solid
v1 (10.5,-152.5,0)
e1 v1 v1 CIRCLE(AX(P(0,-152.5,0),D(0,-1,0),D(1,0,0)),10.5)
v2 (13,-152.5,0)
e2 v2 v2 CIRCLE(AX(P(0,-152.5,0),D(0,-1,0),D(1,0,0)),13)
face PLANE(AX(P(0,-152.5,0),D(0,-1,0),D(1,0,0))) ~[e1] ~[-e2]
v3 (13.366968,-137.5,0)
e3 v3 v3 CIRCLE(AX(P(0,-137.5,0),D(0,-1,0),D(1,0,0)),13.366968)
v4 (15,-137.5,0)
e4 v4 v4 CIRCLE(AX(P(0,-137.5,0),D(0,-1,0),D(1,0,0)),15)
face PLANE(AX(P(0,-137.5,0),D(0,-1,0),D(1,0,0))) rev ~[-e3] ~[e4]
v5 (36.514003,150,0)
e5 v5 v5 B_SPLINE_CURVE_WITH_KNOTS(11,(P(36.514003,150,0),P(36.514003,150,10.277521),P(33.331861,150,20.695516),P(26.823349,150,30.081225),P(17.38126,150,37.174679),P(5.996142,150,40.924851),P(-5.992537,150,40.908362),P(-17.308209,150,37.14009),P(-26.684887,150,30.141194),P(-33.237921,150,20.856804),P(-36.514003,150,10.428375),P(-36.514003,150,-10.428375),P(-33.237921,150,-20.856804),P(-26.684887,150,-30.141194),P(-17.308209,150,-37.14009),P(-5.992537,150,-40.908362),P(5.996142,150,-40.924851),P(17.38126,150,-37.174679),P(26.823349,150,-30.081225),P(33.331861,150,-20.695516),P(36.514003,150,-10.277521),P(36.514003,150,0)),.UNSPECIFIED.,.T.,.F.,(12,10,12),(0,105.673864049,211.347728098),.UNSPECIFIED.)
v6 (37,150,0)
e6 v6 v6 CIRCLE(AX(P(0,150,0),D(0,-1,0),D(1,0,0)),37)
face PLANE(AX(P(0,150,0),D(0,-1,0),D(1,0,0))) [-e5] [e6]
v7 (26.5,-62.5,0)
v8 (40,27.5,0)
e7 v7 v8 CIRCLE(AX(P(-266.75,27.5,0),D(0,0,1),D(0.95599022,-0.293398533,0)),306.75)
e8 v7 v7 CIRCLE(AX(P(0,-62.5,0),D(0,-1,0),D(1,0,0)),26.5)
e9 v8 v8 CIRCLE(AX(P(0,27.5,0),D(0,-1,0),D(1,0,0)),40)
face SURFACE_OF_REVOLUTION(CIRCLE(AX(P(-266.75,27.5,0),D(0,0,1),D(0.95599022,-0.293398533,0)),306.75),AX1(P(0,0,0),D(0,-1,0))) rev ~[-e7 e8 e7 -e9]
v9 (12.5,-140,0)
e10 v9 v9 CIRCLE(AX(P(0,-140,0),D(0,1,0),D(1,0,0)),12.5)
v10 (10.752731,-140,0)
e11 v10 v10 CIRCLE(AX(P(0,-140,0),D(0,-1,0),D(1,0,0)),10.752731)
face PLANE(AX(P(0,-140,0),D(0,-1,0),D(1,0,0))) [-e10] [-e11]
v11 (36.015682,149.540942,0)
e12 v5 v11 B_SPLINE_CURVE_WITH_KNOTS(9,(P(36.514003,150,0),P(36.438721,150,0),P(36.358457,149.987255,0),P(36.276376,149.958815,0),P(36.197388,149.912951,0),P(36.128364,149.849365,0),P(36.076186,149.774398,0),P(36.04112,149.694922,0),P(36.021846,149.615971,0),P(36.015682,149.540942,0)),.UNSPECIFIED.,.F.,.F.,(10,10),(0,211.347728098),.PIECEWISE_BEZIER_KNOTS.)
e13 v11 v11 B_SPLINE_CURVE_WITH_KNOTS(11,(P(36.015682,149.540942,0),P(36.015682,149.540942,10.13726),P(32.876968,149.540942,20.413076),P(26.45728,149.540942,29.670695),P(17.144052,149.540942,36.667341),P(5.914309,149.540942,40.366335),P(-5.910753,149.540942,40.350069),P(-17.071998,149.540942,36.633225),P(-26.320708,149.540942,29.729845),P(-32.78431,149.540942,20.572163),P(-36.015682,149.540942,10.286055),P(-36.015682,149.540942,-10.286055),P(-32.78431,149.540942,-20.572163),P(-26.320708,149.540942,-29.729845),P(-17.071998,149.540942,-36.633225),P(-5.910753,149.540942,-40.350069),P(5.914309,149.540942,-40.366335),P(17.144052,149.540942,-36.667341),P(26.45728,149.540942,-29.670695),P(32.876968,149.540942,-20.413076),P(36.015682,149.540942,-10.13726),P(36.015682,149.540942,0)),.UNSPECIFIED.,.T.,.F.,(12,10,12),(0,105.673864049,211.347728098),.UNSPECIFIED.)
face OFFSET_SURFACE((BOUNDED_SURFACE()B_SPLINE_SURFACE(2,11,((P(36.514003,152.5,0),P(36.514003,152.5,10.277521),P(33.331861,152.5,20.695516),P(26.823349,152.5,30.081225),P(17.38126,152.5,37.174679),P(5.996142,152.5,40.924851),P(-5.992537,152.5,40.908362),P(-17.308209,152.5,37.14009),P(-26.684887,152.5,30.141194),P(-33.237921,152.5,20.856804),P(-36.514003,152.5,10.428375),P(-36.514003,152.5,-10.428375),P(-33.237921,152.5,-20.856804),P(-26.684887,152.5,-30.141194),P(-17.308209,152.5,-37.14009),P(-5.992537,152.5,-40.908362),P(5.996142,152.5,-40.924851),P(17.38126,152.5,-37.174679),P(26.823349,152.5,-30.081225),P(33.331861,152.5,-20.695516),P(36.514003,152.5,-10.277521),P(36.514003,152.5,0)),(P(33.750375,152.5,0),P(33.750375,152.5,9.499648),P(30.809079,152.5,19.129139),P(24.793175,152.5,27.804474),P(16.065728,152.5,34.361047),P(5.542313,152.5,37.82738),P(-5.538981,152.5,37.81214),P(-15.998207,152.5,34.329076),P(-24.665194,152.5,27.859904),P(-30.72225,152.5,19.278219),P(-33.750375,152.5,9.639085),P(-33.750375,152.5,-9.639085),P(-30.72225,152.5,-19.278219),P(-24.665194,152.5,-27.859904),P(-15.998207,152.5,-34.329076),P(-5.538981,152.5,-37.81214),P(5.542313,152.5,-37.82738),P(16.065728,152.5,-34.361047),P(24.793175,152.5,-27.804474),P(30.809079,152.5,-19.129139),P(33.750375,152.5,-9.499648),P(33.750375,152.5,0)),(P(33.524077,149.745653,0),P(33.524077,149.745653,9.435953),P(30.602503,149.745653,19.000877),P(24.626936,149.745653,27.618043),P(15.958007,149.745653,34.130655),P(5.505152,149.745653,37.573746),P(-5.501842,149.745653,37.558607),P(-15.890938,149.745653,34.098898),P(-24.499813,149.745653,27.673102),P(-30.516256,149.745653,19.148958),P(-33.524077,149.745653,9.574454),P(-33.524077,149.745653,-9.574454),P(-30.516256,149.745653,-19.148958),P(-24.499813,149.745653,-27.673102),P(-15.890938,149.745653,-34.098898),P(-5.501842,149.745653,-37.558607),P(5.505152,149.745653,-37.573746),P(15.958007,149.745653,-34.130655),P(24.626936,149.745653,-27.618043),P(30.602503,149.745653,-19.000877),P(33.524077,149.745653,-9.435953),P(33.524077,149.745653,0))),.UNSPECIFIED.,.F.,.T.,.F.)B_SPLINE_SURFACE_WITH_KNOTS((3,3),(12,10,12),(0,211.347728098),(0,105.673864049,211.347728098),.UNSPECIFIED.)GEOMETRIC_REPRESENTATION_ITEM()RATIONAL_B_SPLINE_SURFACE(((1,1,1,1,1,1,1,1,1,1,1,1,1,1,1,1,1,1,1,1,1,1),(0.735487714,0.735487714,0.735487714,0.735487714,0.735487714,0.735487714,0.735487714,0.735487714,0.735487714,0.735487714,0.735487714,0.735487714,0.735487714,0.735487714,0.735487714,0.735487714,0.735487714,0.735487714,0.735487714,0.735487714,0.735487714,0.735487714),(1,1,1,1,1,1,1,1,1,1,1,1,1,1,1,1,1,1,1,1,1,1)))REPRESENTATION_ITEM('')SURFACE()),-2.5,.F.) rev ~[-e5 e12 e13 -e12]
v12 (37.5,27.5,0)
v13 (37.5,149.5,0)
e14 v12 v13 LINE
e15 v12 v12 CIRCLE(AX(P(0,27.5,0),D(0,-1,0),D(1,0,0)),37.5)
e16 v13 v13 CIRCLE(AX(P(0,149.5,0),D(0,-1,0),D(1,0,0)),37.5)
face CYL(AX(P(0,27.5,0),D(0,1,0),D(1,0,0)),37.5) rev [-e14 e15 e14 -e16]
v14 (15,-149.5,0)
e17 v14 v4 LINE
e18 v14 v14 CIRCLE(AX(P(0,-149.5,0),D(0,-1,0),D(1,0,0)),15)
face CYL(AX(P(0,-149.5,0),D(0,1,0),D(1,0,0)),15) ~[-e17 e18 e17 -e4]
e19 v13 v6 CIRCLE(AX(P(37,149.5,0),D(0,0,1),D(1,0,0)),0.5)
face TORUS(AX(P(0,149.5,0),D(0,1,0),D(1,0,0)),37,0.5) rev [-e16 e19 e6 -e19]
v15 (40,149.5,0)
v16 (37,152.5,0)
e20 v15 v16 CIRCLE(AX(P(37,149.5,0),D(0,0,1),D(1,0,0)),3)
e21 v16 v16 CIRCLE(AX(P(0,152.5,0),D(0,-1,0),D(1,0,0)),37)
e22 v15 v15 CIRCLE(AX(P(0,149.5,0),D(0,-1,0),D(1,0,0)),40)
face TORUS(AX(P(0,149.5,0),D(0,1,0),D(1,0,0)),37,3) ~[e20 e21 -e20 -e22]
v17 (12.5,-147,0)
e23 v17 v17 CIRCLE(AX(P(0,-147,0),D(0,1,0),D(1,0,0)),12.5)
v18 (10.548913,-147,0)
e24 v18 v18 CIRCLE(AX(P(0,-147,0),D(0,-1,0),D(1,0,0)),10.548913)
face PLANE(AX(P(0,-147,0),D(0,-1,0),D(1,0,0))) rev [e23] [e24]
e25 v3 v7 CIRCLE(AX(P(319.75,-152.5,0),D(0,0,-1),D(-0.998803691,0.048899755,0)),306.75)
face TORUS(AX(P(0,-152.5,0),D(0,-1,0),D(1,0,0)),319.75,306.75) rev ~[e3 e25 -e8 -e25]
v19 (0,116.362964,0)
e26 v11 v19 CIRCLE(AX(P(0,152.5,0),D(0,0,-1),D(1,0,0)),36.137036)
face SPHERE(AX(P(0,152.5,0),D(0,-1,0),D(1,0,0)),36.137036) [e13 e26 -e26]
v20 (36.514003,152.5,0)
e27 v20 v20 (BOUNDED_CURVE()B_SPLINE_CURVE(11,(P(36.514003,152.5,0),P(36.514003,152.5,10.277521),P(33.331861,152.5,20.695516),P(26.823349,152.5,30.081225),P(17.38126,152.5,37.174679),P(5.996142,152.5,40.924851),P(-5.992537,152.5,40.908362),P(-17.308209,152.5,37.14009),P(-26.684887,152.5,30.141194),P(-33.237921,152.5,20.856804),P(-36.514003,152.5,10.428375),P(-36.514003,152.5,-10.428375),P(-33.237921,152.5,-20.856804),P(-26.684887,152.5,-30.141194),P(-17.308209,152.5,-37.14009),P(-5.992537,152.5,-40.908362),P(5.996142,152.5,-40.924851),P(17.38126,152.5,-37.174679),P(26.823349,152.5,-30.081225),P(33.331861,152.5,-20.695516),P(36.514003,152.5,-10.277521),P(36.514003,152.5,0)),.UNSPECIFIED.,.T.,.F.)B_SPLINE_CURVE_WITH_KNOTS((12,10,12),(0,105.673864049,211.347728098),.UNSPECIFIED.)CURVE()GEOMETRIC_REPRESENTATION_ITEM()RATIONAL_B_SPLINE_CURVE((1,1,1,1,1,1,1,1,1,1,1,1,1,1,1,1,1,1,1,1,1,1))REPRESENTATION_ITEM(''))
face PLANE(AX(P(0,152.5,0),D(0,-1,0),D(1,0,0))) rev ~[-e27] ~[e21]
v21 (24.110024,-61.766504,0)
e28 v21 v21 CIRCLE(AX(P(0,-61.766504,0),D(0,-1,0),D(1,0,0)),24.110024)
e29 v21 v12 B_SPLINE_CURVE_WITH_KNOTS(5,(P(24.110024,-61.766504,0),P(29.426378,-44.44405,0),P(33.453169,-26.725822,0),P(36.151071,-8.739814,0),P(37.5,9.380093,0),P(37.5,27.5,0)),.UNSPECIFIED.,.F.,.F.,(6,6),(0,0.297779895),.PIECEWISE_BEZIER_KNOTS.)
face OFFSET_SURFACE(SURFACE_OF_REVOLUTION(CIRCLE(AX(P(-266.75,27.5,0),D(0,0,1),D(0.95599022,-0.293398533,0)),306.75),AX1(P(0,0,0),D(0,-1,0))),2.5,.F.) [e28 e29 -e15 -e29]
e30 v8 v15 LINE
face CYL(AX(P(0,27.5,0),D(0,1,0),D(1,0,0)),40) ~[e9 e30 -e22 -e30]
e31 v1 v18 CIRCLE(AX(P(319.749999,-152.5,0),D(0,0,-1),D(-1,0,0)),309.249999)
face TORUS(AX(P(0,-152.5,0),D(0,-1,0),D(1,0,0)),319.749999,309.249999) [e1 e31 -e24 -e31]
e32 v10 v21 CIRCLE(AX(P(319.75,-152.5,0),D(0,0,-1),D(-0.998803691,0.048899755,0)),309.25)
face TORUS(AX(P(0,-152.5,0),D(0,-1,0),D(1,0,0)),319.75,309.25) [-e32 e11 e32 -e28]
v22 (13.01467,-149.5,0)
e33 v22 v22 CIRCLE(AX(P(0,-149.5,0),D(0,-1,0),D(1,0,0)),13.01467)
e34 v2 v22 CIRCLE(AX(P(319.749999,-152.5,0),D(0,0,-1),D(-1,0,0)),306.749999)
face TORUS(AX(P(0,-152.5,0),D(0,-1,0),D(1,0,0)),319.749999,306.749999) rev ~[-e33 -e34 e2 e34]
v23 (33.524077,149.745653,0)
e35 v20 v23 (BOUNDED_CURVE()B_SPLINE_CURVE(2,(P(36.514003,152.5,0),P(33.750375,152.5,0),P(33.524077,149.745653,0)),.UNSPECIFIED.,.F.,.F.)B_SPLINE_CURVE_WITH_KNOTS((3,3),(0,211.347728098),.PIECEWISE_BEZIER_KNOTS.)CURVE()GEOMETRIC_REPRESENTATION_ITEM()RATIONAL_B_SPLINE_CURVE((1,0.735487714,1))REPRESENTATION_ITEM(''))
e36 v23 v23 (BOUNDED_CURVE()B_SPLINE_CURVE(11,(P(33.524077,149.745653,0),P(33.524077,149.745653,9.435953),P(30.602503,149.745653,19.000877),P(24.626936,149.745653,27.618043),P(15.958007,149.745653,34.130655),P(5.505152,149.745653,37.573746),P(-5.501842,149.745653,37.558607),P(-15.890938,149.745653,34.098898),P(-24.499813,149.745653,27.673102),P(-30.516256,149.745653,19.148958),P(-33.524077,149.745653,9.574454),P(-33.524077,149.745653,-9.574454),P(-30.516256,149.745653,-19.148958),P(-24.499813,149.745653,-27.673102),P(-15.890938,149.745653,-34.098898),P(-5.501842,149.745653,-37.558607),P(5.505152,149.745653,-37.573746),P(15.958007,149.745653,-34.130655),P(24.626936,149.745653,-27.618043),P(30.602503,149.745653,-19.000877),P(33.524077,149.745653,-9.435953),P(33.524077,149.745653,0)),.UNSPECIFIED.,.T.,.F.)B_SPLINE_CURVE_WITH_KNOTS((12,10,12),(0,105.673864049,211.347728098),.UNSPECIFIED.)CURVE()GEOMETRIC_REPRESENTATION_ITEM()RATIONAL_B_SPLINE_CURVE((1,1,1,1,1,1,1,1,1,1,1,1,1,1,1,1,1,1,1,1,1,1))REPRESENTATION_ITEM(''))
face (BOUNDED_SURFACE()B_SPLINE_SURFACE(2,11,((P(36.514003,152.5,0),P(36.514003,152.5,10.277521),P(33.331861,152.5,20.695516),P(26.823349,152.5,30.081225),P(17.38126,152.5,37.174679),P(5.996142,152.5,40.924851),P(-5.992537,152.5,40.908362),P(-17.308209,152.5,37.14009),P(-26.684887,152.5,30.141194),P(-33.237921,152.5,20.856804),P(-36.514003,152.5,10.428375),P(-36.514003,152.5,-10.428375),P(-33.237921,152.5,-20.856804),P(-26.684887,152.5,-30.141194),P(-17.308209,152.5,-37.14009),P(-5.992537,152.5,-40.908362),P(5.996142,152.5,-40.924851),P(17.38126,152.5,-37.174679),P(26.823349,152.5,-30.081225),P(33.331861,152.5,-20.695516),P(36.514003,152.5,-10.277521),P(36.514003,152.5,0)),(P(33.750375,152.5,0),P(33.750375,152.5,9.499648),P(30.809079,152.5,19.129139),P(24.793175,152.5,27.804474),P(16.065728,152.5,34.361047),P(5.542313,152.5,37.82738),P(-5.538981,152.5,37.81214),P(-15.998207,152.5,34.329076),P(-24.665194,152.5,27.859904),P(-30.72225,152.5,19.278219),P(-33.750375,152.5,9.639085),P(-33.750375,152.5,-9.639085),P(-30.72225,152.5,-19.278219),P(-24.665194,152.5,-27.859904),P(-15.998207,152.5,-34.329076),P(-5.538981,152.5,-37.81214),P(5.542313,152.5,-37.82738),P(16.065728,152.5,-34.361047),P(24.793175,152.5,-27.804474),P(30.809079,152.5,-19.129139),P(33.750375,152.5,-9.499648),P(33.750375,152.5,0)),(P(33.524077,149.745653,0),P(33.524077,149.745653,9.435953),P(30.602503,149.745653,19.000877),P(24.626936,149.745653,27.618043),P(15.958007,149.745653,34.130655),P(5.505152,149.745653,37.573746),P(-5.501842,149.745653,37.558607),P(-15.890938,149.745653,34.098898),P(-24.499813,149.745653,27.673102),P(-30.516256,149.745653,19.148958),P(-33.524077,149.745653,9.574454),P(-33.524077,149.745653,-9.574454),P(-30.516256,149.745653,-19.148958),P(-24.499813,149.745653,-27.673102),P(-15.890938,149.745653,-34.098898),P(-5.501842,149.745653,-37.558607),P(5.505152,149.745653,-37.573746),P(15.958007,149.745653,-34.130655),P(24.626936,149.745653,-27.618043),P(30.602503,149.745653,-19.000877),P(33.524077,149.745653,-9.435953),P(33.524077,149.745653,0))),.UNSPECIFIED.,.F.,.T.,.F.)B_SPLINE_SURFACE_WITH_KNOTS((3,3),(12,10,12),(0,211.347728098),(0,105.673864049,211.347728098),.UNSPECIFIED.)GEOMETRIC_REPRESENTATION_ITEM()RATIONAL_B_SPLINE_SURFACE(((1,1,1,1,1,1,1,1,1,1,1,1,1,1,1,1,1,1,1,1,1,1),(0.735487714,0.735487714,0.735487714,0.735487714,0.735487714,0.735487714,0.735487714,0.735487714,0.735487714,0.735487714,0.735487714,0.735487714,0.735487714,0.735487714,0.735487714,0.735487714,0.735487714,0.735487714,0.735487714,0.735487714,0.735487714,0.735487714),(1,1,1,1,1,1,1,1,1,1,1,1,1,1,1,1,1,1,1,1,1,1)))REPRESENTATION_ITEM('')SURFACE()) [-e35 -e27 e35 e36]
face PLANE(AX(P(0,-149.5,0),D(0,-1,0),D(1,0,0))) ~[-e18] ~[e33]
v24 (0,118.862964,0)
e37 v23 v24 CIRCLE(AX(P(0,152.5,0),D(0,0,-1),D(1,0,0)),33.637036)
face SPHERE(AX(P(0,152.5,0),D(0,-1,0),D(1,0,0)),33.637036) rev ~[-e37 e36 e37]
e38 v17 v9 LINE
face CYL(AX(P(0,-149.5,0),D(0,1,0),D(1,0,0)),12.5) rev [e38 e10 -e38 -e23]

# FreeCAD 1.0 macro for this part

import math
import FreeCAD as App
import Part
import Sketcher
from FreeCAD import Vector


def edges_at(feature, points):
    """Names of the edges that pass closest to the given points."""
    edges = feature.Shape.Edges
    near = lambda p: min(range(len(edges)), key=lambda i: edges[i].distToShape(Part.Vertex(*p))[0])
    return sorted({f"Edge{near(p) + 1}" for p in points})


def faces_at(feature, points):
    """Names of the faces that lie closest to the given points."""
    faces = feature.Shape.Faces
    near = lambda p: min(range(len(faces)), key=lambda i: faces[i].distToShape(Part.Vertex(*p))[0])
    return sorted({f"Face{near(p) + 1}" for p in points})

doc = App.newDocument("Part")
body = doc.addObject("PartDesign::Body", "Body")

sketch1 = body.newObject("Sketcher::SketchObject", "Sketch")
sketch1.AttachmentSupport = (doc.getObject("XY_Plane"), [""])
sketch1.MapMode = "FlatFace"
sketch1.addGeometry(Part.LineSegment(Vector(0, -152.5, 0), Vector(13, -152.5, 0)), False)
sketch1.addGeometry(Part.ArcOfCircle(Part.Circle(Vector(319.7, -152.5, 0), Vector(0, 0, 1), 306.7), math.radians(179.44), math.radians(180)), False)
sketch1.addGeometry(Part.LineSegment(Vector(13, -149.5, 0), Vector(15, -149.5, 0)), False)
sketch1.addGeometry(Part.LineSegment(Vector(15, -149.5, 0), Vector(15, -137.5, 0)), False)
sketch1.addGeometry(Part.LineSegment(Vector(15, -137.5, 0), Vector(13.4, -137.5, 0)), False)
sketch1.addGeometry(Part.ArcOfCircle(Part.Circle(Vector(319.7, -152.5, 0), Vector(0, 0, 1), 306.7), math.radians(162.94), math.radians(177.2)), False)
sketch1.addGeometry(Part.ArcOfCircle(Part.Circle(Vector(-266.7, 27.5, 0), Vector(0, 0, 1), 306.7), math.radians(-17.06), math.radians(0)), False)
sketch1.addGeometry(Part.LineSegment(Vector(40, 27.5, 0), Vector(40, 152.5, 0)), False)
sketch1.addGeometry(Part.LineSegment(Vector(40, 152.5, 0), Vector(33.6, 152.5, 0)), False)
sketch1.addGeometry(Part.ArcOfCircle(Part.Circle(Vector(0, 152.5, 0), Vector(0, 0, 1), 33.6), math.radians(-90), math.radians(0)), False)
sketch1.addGeometry(Part.LineSegment(Vector(0, 118.9, 0), Vector(0, -152.5, 0)), False)
sketch1.addConstraint(Sketcher.Constraint("Coincident", 0, 2, 1, 2))
sketch1.addConstraint(Sketcher.Constraint("Coincident", 1, 1, 2, 1))
sketch1.addConstraint(Sketcher.Constraint("Coincident", 2, 2, 3, 1))
sketch1.addConstraint(Sketcher.Constraint("Coincident", 3, 2, 4, 1))
sketch1.addConstraint(Sketcher.Constraint("Coincident", 4, 2, 5, 2))
sketch1.addConstraint(Sketcher.Constraint("Tangent", 5, 1, 6, 1))
sketch1.addConstraint(Sketcher.Constraint("Tangent", 6, 2, 7, 1))
sketch1.addConstraint(Sketcher.Constraint("Coincident", 7, 2, 8, 1))
sketch1.addConstraint(Sketcher.Constraint("Coincident", 8, 2, 9, 2))
sketch1.addConstraint(Sketcher.Constraint("Coincident", 9, 1, 10, 1))
sketch1.addConstraint(Sketcher.Constraint("Coincident", 10, 2, 0, 1))
sketch1.addConstraint(Sketcher.Constraint("Horizontal", 0))
sketch1.addConstraint(Sketcher.Constraint("Horizontal", 2))
sketch1.addConstraint(Sketcher.Constraint("Vertical", 3))
sketch1.addConstraint(Sketcher.Constraint("Horizontal", 4))
sketch1.addConstraint(Sketcher.Constraint("Vertical", 7))
sketch1.addConstraint(Sketcher.Constraint("Horizontal", 8))
sketch1.addConstraint(Sketcher.Constraint("Vertical", 10))
sketch1.addConstraint(Sketcher.Constraint("Coincident", 5, 3, 1, 3))
sketch1.addConstraint(Sketcher.Constraint("Equal", 1, 5))
sketch1.addConstraint(Sketcher.Constraint("Equal", 5, 6))
sketch1.addConstraint(Sketcher.Constraint("PointOnObject", 9, 3, -2))
sketch1.addConstraint(Sketcher.Constraint("PointOnObject", 9, 1, -2))
sketch1.addConstraint(Sketcher.Constraint("Horizontal", 5, 3, 0, 2))
sketch1.addConstraint(Sketcher.Constraint("Horizontal", 9, 3, 7, 2))
sketch1.addConstraint(Sketcher.Constraint("DistanceX", 0, 1, 0, 2, 13.0))
sketch1.addConstraint(Sketcher.Constraint("DistanceY", 3, 1, 3, 2, 12.0))
sketch1.addConstraint(Sketcher.Constraint("DistanceY", 7, 1, 7, 2, 125.0))
sketch1.addConstraint(Sketcher.Constraint("Radius", 1, 306.749999))
sketch1.addConstraint(Sketcher.Constraint("DistanceX", -1, 1, 2, 2, 15.0))
sketch1.addConstraint(Sketcher.Constraint("DistanceX", -1, 1, 6, 2, 40.0))
sketch1.addConstraint(Sketcher.Constraint("DistanceY", 0, 2, 2, 2, 3.0))
sketch1.addConstraint(Sketcher.Constraint("DistanceY", 1, 3, -1, 1, 152.5))
sketch1.addConstraint(Sketcher.Constraint("Radius", 9, 33.637036))
revolution = body.newObject("PartDesign::Revolution", "Revolution")
revolution.Profile = sketch1
revolution.ReferenceAxis = (sketch1, ["V_Axis"])
revolution.Angle = 360
doc.recompute()

fillet = body.newObject("PartDesign::Fillet", "Fillet")
fillet.Base = (revolution, edges_at(revolution, [(-40, 152.5, 0)]))
fillet.Radius = 3
doc.recompute()

fillet2 = body.newObject("PartDesign::Fillet", "Fillet001")
fillet2.Base = (fillet, edges_at(fillet, [(-33.637, 152.5, 0)]))
fillet2.Radius = 3
doc.recompute()

thickness = body.newObject("PartDesign::Thickness", "Thickness")
thickness.Base = (fillet2, faces_at(fillet2, [(0, -152.5, 0)]))
thickness.Value = 2.5
thickness.Reversed = True
thickness.Join = "Intersection"

doc.recompute()
